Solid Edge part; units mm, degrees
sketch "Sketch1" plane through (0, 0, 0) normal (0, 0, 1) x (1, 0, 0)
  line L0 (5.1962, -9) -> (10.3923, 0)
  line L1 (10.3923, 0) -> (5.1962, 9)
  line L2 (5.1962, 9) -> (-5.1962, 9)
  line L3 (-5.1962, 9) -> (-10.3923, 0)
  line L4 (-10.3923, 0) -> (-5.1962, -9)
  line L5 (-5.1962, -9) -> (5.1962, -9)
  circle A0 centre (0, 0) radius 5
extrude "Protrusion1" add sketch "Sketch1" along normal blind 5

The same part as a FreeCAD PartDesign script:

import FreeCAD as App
import Part
import Sketcher
from FreeCAD import Vector
Q = App.Units.Quantity

doc = App.newDocument("Part")
params = doc.addObject("Spreadsheet::Sheet", "Params")
for row, (alias, value) in enumerate([
    ("sketch1_diameter", "10 mm"),
    ("pad1_length", "5 mm"),
], start=1):
    params.set(f"A{row}", alias)
    params.set(f"B{row}", "=" + value)
    params.setAlias(f"B{row}", alias)

body = doc.addObject("PartDesign::Body", "Body")

# Sketch on XY plane
sketch1 = body.newObject("Sketcher::SketchObject", "Sketch")
sketch1.AttachmentSupport = (doc.getObject("XY_Plane"), [""])
sketch1.MapMode = "FlatFace"
sketch1.addGeometry([
    Part.LineSegment(Vector(-5, -9, 0), Vector(5, -9, 0)),  # 0
    Part.LineSegment(Vector(5, -9, 0), Vector(10, 0, 0)),  # 1
    Part.LineSegment(Vector(10, 0, 0), Vector(5, 9, 0)),  # 2
    Part.LineSegment(Vector(5, 9, 0), Vector(-5, 9, 0)),  # 3
    Part.LineSegment(Vector(-5, 9, 0), Vector(-10, 0, 0)),  # 4
    Part.LineSegment(Vector(-10, 0, 0), Vector(-5, -9, 0)),  # 5
    Part.Circle(Vector(0, 0, 0), Vector(0, 0, 1), 5),  # 6
], False)
sketch1.addConstraint([
    Sketcher.Constraint("Coincident", 0, 2, 1, 1),
    Sketcher.Constraint("Coincident", 1, 2, 2, 1),
    Sketcher.Constraint("Coincident", 2, 2, 3, 1),
    Sketcher.Constraint("Coincident", 3, 2, 4, 1),
    Sketcher.Constraint("Coincident", 4, 2, 5, 1),
    Sketcher.Constraint("Coincident", 5, 2, 0, 1),
    Sketcher.Constraint("Horizontal", 0),
    Sketcher.Constraint("Horizontal", 3),
    Sketcher.Constraint("Coincident", 6, 3, -1, 1),
    Sketcher.Constraint("Symmetric", 0, 2, 3, 2, -1, 1),
    Sketcher.Constraint("Symmetric", 1, 2, 4, 2, -1, 1),
    Sketcher.Constraint("PointOnObject", 1, 2, -1),
    Sketcher.Constraint("Parallel", 2, 5),
    Sketcher.Constraint("Vertical", 0, 2, 2, 2),
    Sketcher.Constraint("Diameter", 6, Q("10 mm")),
    Sketcher.Constraint("Angle", 1, Q("60.0003 deg")),
    Sketcher.Constraint("DistanceY", 0, 2, -1, 1, Q("9 mm")),
    Sketcher.Constraint("DistanceX", 0, 1, 0, 2, Q("10.3924 mm")),
])
sketch1.setExpression("Constraints[14]", "Params.sketch1_diameter")
pad1 = body.newObject("PartDesign::Pad", "Pad")
pad1.Profile = sketch1
pad1.setExpression("Length", "Params.pad1_length")

doc.recompute()
